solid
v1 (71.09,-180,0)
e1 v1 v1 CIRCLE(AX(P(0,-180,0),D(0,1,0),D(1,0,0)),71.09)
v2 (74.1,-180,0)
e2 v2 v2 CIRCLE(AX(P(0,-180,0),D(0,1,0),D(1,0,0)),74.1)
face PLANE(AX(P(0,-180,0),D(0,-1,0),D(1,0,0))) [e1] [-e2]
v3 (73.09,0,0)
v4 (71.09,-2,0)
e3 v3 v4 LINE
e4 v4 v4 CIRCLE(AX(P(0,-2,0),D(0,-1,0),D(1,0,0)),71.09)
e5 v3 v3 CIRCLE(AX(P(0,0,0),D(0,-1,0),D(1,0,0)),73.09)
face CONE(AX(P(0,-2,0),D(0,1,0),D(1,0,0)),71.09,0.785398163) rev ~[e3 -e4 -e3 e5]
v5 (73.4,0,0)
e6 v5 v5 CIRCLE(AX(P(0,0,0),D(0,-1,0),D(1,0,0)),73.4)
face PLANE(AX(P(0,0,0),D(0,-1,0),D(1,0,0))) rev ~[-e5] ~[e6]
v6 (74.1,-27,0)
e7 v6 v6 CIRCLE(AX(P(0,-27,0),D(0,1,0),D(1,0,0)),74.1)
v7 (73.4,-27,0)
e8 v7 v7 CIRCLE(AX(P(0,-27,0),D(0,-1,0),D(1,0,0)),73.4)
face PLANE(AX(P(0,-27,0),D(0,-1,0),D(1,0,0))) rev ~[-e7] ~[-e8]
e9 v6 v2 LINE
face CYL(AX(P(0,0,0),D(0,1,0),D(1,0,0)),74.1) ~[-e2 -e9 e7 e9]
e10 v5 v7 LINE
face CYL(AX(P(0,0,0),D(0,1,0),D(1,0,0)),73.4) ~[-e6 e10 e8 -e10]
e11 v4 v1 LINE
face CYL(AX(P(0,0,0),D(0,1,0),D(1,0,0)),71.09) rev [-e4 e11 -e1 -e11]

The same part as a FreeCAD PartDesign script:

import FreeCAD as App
import Part
import Sketcher
from FreeCAD import Vector
Q = App.Units.Quantity


def edges_at(feature, points):
    """Names of the edges that pass closest to the given points."""
    edges = feature.Shape.Edges
    near = lambda p: min(range(len(edges)), key=lambda i: edges[i].distToShape(Part.Vertex(*p))[0])
    return sorted({f"Edge{near(p) + 1}" for p in points})

doc = App.newDocument("Part")
body = doc.addObject("PartDesign::Body", "Body")

# Sketch on XZ plane
sketch1 = doc.addObject("Sketcher::SketchObject", "Sketch")
body.addObject(sketch1)
sketch1.AttachmentSupport = (doc.XZ_Plane, [""])
sketch1.MapMode = "FlatFace"
sketch1.addGeometry([
    Part.Circle(Vector(0, 0, 0), Vector(0, 0, 1), 74),
    Part.Circle(Vector(0, 0, 0), Vector(0, 0, 1), 71),
], False)
sketch1.addConstraint([
    Sketcher.Constraint("Coincident", 0, 3, -1, 1),
    Sketcher.Constraint("Coincident", 1, 3, -1, 1),
    Sketcher.Constraint("Diameter", 0, Q("148.2 mm")),
    Sketcher.Constraint("Diameter", 1, Q("142.18 mm")),
])
pad1 = doc.addObject("PartDesign::Pad", "Pad")
body.addObject(pad1)
pad1.Profile = sketch1
pad1.Length = 260

# Sketch on XZ plane
sketch2 = doc.addObject("Sketcher::SketchObject", "Sketch001")
body.addObject(sketch2)
sketch2.AttachmentSupport = (doc.XZ_Plane, [""])
sketch2.MapMode = "FlatFace"
sketch2.addGeometry([
    Part.Circle(Vector(0, 0, 0), Vector(0, 0, 1), 79),
    Part.Circle(Vector(0, 0, 0), Vector(0, 0, 1), 73),
], False)
sketch2.addConstraint([
    Sketcher.Constraint("Coincident", 0, 3, -1, 1),
    Sketcher.Constraint("Coincident", 1, 3, -1, 1),
    Sketcher.Constraint("Diameter", 0, Q("157.3 mm")),
    Sketcher.Constraint("Diameter", 1, Q("146.8 mm")),
])
pocket1 = doc.addObject("PartDesign::Pocket", "Pocket")
body.addObject(pocket1)
pocket1.Profile = sketch2
pocket1.Length = 27
pocket1.Reversed = True

# Sketch on XZ plane
sketch3 = doc.addObject("Sketcher::SketchObject", "Sketch002")
body.addObject(sketch3)
sketch3.AttachmentSupport = (doc.XZ_Plane, [""])
sketch3.MapMode = "FlatFace"
sketch3.AttachmentOffset = App.Placement(Vector(0, 0, 260), App.Rotation())
sketch3.addGeometry([
    Part.Circle(Vector(0, 0, 0), Vector(0, 0, 1), 74),
    Part.Circle(Vector(0, 0, 0), Vector(0, 0, 1), 73),
], False)
sketch3.addConstraint([
    Sketcher.Constraint("Coincident", 0, 3, -1, 1),
    Sketcher.Constraint("Coincident", 1, 3, -1, 1),
    Sketcher.Constraint("Diameter", 0, Q("148.2 mm")),
    Sketcher.Constraint("Diameter", 1, Q("146.8 mm")),
])
pocket2 = doc.addObject("PartDesign::Pocket", "Pocket001")
body.addObject(pocket2)
pocket2.Profile = sketch3
pocket2.Length = 27
doc.recompute()

chamfer = doc.addObject("PartDesign::Chamfer", "Chamfer")
body.addObject(chamfer)
chamfer.Base = (pocket2, edges_at(pocket2, [(-71.09, -260, 0), (-71.09, 0, 0)]))
chamfer.Size = 2

# Sketch on XZ plane
sketch4 = doc.addObject("Sketcher::SketchObject", "Sketch003")
body.addObject(sketch4)
sketch4.AttachmentSupport = (doc.XZ_Plane, [""])
sketch4.MapMode = "FlatFace"
sketch4.AttachmentOffset = App.Placement(Vector(0, 0, 260), App.Rotation())
sketch4.addGeometry([
    Part.Circle(Vector(0, 0, 0), Vector(0, 0, 1), 95),
    Part.Circle(Vector(0, 0, 0), Vector(0, 0, 1), 7),
], False)
sketch4.addConstraint([
    Sketcher.Constraint("Coincident", 0, 3, -1, 1),
    Sketcher.Constraint("Coincident", 1, 3, -1, 1),
    Sketcher.Constraint("Diameter", 0, Q("190.101752 mm")),
    Sketcher.Constraint("Diameter", 1, Q("14.822316 mm")),
])
pocket3 = doc.addObject("PartDesign::Pocket", "Pocket002")
body.addObject(pocket3)
pocket3.Profile = sketch4
pocket3.Length = 80

doc.recompute()
